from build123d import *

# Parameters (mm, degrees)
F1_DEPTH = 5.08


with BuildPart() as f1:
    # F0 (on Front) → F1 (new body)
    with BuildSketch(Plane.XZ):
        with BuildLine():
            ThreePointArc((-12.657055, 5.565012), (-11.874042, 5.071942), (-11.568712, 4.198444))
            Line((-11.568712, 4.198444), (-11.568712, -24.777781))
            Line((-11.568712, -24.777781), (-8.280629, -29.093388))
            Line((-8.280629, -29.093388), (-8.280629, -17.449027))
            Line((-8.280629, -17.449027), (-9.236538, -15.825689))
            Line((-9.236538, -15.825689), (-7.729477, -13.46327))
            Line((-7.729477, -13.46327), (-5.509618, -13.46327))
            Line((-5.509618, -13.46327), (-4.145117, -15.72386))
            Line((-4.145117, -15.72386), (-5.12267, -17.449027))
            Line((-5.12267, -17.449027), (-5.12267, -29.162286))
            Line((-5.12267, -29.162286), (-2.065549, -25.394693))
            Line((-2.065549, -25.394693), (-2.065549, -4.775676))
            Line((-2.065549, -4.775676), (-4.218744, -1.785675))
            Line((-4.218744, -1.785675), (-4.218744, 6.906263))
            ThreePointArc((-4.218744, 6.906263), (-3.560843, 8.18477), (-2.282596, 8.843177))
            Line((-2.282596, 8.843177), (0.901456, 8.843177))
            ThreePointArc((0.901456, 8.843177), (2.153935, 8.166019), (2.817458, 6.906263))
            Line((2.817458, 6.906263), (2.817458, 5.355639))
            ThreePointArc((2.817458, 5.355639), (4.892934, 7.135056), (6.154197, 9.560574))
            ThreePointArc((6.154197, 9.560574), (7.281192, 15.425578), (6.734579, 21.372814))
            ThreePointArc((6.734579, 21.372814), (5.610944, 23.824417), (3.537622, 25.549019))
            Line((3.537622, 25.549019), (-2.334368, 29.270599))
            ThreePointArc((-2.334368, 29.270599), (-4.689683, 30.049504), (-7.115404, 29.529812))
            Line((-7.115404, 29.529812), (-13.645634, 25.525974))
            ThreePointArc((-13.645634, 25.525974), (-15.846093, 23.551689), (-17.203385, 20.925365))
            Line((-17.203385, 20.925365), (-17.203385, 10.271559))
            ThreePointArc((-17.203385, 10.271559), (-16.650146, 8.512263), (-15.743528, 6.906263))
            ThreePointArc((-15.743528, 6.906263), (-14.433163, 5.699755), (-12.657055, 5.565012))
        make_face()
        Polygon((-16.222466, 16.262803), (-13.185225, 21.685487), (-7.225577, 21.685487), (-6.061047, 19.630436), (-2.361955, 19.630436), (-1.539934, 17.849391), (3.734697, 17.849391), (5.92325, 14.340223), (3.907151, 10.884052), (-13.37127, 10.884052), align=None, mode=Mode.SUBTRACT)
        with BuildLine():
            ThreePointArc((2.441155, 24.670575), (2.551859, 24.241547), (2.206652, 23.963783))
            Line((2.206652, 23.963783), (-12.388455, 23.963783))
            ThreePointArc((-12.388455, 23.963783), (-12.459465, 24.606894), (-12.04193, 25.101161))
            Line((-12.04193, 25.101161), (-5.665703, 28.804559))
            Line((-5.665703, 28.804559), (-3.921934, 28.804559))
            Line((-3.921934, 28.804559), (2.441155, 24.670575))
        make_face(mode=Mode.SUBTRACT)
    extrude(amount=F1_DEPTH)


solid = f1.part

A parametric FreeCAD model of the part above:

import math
import FreeCAD as App
import Part
import Sketcher
Q = App.Units.Quantity


def add_polygon(sketch, points):
    """Adds a closed chain of lines whose ends are joined by coincident constraints."""
    first, n = sketch.GeometryCount, len(points)
    for a, b in zip(points, points[1:] + points[:1]):
        sketch.addGeometry(Part.LineSegment(App.Vector(*a, 0), App.Vector(*b, 0)), False)
    for i in range(n):
        sketch.addConstraint(Sketcher.Constraint("Coincident", first + i, 2, first + (i + 1) % n, 1))

doc = App.newDocument("Part")
params = doc.addObject("Spreadsheet::Sheet", "Params")
for row, (alias, value) in enumerate([
    ("pad1_length", "0.2 in"),
], start=1):
    params.set(f"A{row}", alias)
    params.set(f"B{row}", "=" + value)
    params.setAlias(f"B{row}", alias)

body = doc.addObject("PartDesign::Body", "Body")

sketch1 = body.newObject("Sketcher::SketchObject", "Sketch")
sketch1.AttachmentSupport = (doc.getObject("XZ_Plane"), [""])
sketch1.MapMode = "FlatFace"
sketch1.addGeometry(Part.ArcOfCircle(Part.Circle(App.Vector(-12.970843, 4.198444, 0), App.Vector(0, 0, 1), 1.402131), math.radians(0.000002), math.radians(77.068053)), False)
sketch1.addGeometry(Part.LineSegment(App.Vector(-11.568712, 4.198444, 0), App.Vector(-11.568712, -24.777781, 0)), False)
sketch1.addGeometry(Part.LineSegment(App.Vector(-11.568712, -24.777781, 0), App.Vector(-8.280629, -29.093388, 0)), False)
sketch1.addGeometry(Part.LineSegment(App.Vector(-8.280629, -29.093388, 0), App.Vector(-8.280629, -17.449027, 0)), False)
sketch1.addGeometry(Part.LineSegment(App.Vector(-8.280629, -17.449027, 0), App.Vector(-9.236538, -15.825689, 0)), False)
sketch1.addGeometry(Part.LineSegment(App.Vector(-9.236538, -15.825689, 0), App.Vector(-7.729477, -13.46327, 0)), False)
sketch1.addGeometry(Part.LineSegment(App.Vector(-7.729477, -13.46327, 0), App.Vector(-5.509618, -13.46327, 0)), False)
sketch1.addGeometry(Part.LineSegment(App.Vector(-5.509618, -13.46327, 0), App.Vector(-4.145117, -15.72386, 0)), False)
sketch1.addGeometry(Part.LineSegment(App.Vector(-4.145117, -15.72386, 0), App.Vector(-5.12267, -17.449027, 0)), False)
sketch1.addGeometry(Part.LineSegment(App.Vector(-5.12267, -17.449027, 0), App.Vector(-5.12267, -29.162286, 0)), False)
sketch1.addGeometry(Part.LineSegment(App.Vector(-5.12267, -29.162286, 0), App.Vector(-2.065549, -25.394693, 0)), False)
sketch1.addGeometry(Part.LineSegment(App.Vector(-2.065549, -25.394693, 0), App.Vector(-2.065549, -4.775676, 0)), False)
sketch1.addGeometry(Part.LineSegment(App.Vector(-2.065549, -4.775676, 0), App.Vector(-4.218744, -1.785675, 0)), False)
sketch1.addGeometry(Part.LineSegment(App.Vector(-4.218744, -1.785675, 0), App.Vector(-4.218744, 6.906263, 0)), False)
sketch1.addGeometry(Part.ArcOfCircle(Part.Circle(App.Vector(-1.893843, 6.51843, 0), App.Vector(0, 0, 1), 2.357028), math.radians(99.493377), math.radians(170.529287)), False)
sketch1.addGeometry(Part.LineSegment(App.Vector(-2.282596, 8.843177, 0), App.Vector(0.901456, 8.843177, 0)), False)
sketch1.addGeometry(Part.ArcOfCircle(Part.Circle(App.Vector(0.414203, 6.44507, 0), App.Vector(0, 0, 1), 2.447107), math.radians(10.863199), math.radians(78.514853)), False)
sketch1.addGeometry(Part.LineSegment(App.Vector(2.817458, 6.906263, 0), App.Vector(2.817458, 5.355639, 0)), False)
sketch1.addGeometry(Part.ArcOfCircle(Part.Circle(App.Vector(-0.739631, 11.604661, 0), App.Vector(0, 0, 1), 7.190491), math.radians(-60.350458), math.radians(-16.5156)), False)
sketch1.addGeometry(Part.ArcOfCircle(Part.Circle(App.Vector(-13.979756, 16.470213, 0), App.Vector(0, 0, 1), 21.286596), math.radians(-18.94137), math.radians(13.315559)), False)
sketch1.addGeometry(Part.ArcOfCircle(Part.Circle(App.Vector(0.782353, 20.128048, 0), App.Vector(0, 0, 1), 6.08099), math.radians(11.81182), math.radians(63.057539)), False)
sketch1.addGeometry(Part.LineSegment(App.Vector(3.537622, 25.549019, 0), App.Vector(-2.334368, 29.270599, 0)), False)
sketch1.addGeometry(Part.ArcOfCircle(Part.Circle(App.Vector(-4.94587, 25.324278, 0), App.Vector(0, 0, 1), 4.732166), math.radians(56.505159), math.radians(117.288118)), False)
sketch1.addGeometry(Part.LineSegment(App.Vector(-7.115404, 29.529812, 0), App.Vector(-13.645634, 25.525974, 0)), False)
sketch1.addGeometry(Part.ArcOfCircle(Part.Circle(App.Vector(-9.359674, 18.5356, 0), App.Vector(0, 0, 1), 8.199682), math.radians(121.513427), math.radians(163.055451)), False)
sketch1.addGeometry(Part.LineSegment(App.Vector(-17.203385, 20.925365, 0), App.Vector(-17.203385, 10.271559, 0)), False)
sketch1.addGeometry(Part.ArcOfCircle(Part.Circle(App.Vector(-8.54972, 12.026208, 0), App.Vector(0, 0, 1), 8.829762), math.radians(-168.537892), math.radians(-144.559949)), False)
sketch1.addGeometry(Part.ArcOfCircle(Part.Circle(App.Vector(-13.351092, 8.189806, 0), App.Vector(0, 0, 1), 2.715001), math.radians(-151.786416), math.radians(-75.189051)), False)
add_polygon(sketch1, [(-13.37127, 10.884052), (-16.222466, 16.262803), (-13.185225, 21.685487), (-7.225577, 21.685487), (-6.061047, 19.630436), (-2.361955, 19.630436), (-1.539934, 17.849391), (3.734697, 17.849391), (5.92325, 14.340223), (3.907151, 10.884052)])
sketch1.addGeometry(Part.LineSegment(App.Vector(-3.921934, 28.804559, 0), App.Vector(2.441155, 24.670575, 0)), False)
sketch1.addGeometry(Part.ArcOfCircle(Part.Circle(App.Vector(2.163949, 24.37025, 0), App.Vector(0, 0, 1), 0.408704), math.radians(-84.002541), math.radians(47.292399)), False)
sketch1.addGeometry(Part.LineSegment(App.Vector(2.206652, 23.963783, 0), App.Vector(-12.388455, 23.963783, 0)), False)
sketch1.addGeometry(Part.ArcOfCircle(Part.Circle(App.Vector(-11.675348, 24.367998, 0), App.Vector(0, 0, 1), 0.819702), math.radians(116.56507), math.radians(209.546114)), False)
sketch1.addGeometry(Part.LineSegment(App.Vector(-12.04193, 25.101161, 0), App.Vector(-5.665703, 28.804559, 0)), False)
sketch1.addGeometry(Part.LineSegment(App.Vector(-5.665703, 28.804559, 0), App.Vector(-3.921934, 28.804559, 0)), False)
sketch1.addConstraint([
    Sketcher.Constraint("Coincident", 0, 1, 1, 1),
    Sketcher.Constraint("Coincident", 1, 2, 2, 1),
    Sketcher.Constraint("Coincident", 2, 2, 3, 1),
    Sketcher.Constraint("Coincident", 3, 2, 4, 1),
    Sketcher.Constraint("Coincident", 4, 2, 5, 1),
    Sketcher.Constraint("Coincident", 5, 2, 6, 1),
    Sketcher.Constraint("Coincident", 6, 2, 7, 1),
    Sketcher.Constraint("Coincident", 7, 2, 8, 1),
    Sketcher.Constraint("Coincident", 8, 2, 9, 1),
    Sketcher.Constraint("Coincident", 9, 2, 10, 1),
    Sketcher.Constraint("Coincident", 10, 2, 11, 1),
    Sketcher.Constraint("Coincident", 11, 2, 12, 1),
    Sketcher.Constraint("Coincident", 12, 2, 13, 1),
    Sketcher.Constraint("Coincident", 13, 2, 14, 2),
    Sketcher.Constraint("Coincident", 14, 1, 15, 1),
    Sketcher.Constraint("Coincident", 15, 2, 16, 2),
    Sketcher.Constraint("Coincident", 16, 1, 17, 1),
    Sketcher.Constraint("Coincident", 17, 2, 18, 1),
    Sketcher.Constraint("Coincident", 18, 2, 19, 1),
    Sketcher.Constraint("Coincident", 19, 2, 20, 1),
    Sketcher.Constraint("Coincident", 20, 2, 21, 1),
    Sketcher.Constraint("Coincident", 21, 2, 22, 1),
    Sketcher.Constraint("Coincident", 22, 2, 23, 1),
    Sketcher.Constraint("Coincident", 23, 2, 24, 1),
    Sketcher.Constraint("Coincident", 24, 2, 25, 1),
    Sketcher.Constraint("Coincident", 25, 2, 26, 1),
    Sketcher.Constraint("Coincident", 26, 2, 27, 1),
    Sketcher.Constraint("Coincident", 27, 2, 0, 2),
    Sketcher.Constraint("Coincident", 38, 2, 39, 2),
    Sketcher.Constraint("Coincident", 39, 1, 40, 1),
    Sketcher.Constraint("Coincident", 40, 2, 41, 2),
    Sketcher.Constraint("Coincident", 41, 1, 42, 1),
    Sketcher.Constraint("Coincident", 42, 2, 43, 1),
    Sketcher.Constraint("Coincident", 43, 2, 38, 1),
    Sketcher.Constraint("Vertical", 1),
    Sketcher.Constraint("Vertical", 3),
    Sketcher.Constraint("Horizontal", 6),
    Sketcher.Constraint("Vertical", 9),
    Sketcher.Constraint("Vertical", 11),
    Sketcher.Constraint("Vertical", 13),
    Sketcher.Constraint("Horizontal", 15),
    Sketcher.Constraint("Vertical", 17),
    Sketcher.Constraint("Vertical", 25),
    Sketcher.Constraint("Horizontal", 30),
    Sketcher.Constraint("Horizontal", 32),
    Sketcher.Constraint("Horizontal", 34),
    Sketcher.Constraint("Horizontal", 37),
    Sketcher.Constraint("Horizontal", 40),
    Sketcher.Constraint("Horizontal", 43),
    Sketcher.Constraint("Radius", 27, 2.715001),
    Sketcher.Constraint("Radius", 41, 0.819702),
    Sketcher.Constraint("Radius", 0, 1.402131),
    Sketcher.Constraint("Radius", 18, 7.190491),
    Sketcher.Constraint("Radius", 20, 6.08099),
    Sketcher.Constraint("Radius", 24, 8.199682),
    Sketcher.Constraint("DistanceY", -1, 1, 13, 2, Q("0.2719001 in")),
    Sketcher.Constraint("DistanceY", -1, 1, 16, 1, Q("0.2719001 in")),
    Sketcher.Constraint("DistanceY", -1, 1, 26, 2, Q("0.2719001 in")),
    Sketcher.Constraint("Radius", 14, 2.357028),
    Sketcher.Constraint("Radius", 16, 2.447107),
    Sketcher.Constraint("Radius", 19, 21.286596),
    Sketcher.Constraint("Radius", 22, 4.732166),
    Sketcher.Constraint("Radius", 26, 8.829762),
    Sketcher.Constraint("Radius", 39, 0.408704),
    Sketcher.Constraint("DistanceY", 16, 3, 20, 3, Q("0.5386999 in")),
    Sketcher.Constraint("DistanceX", 22, 3, 18, 3, Q("0.1656 in")),
    Sketcher.Constraint("Distance", 35, 4.135701),
    Sketcher.Constraint("Distance", 42, 7.373698),
    Sketcher.Constraint("DistanceX", 6, 1, 6, 2, 2.219859),
    Sketcher.Constraint("DistanceX", 15, 1, 15, 2, 3.184052),
    Sketcher.Constraint("DistanceX", 30, 1, 30, 2, 5.959648),
    Sketcher.Constraint("DistanceX", 34, 1, 34, 2, 5.274631),
    Sketcher.Constraint("DistanceX", 37, 2, 37, 1, 17.278421),
    Sketcher.Constraint("DistanceX", 43, 1, 43, 2, 1.743769),
    Sketcher.Constraint("DistanceY", 3, 1, 3, 2, 11.644361),
    Sketcher.Constraint("DistanceY", 9, 2, 9, 1, 11.713259),
    Sketcher.Constraint("DistanceY", -1, 1, 24, 3, 18.5356),
    Sketcher.Constraint("DistanceY", -1, 1, 21, 2, 29.270599),
    Sketcher.Constraint("DistanceX", 0, 3, 14, 3, 11.077),
    Sketcher.Constraint("DistanceY", 27, 3, 26, 3, 3.836402),
    Sketcher.Constraint("DistanceX", 41, 3, 20, 3, 12.457701),
    Sketcher.Constraint("DistanceY", 2, 2, 4, 2, 13.267699),
    Sketcher.Constraint("DistanceX", 6, 2, 7, 2, 1.364501),
    Sketcher.Constraint("DistanceY", 9, 2, 2, 2, 0.068898),
    Sketcher.Constraint("DistanceY", 11, 2, 12, 2, 2.990001),
    Sketcher.Constraint("DistanceX", 12, 2, 14, 3, 2.324901),
    Sketcher.Constraint("DistanceX", 14, 1, 16, 3, 2.696799),
    Sketcher.Constraint("DistanceX", 14, 3, 15, 2, 2.795299),
    Sketcher.Constraint("DistanceY", 41, 3, 21, 2, 4.902601),
    Sketcher.Constraint("DistanceX", 31, 2, 20, 3, 6.8434),
    Sketcher.Constraint("DistanceX", 36, 2, 35, 2, 2.016099),
    Sketcher.Constraint("DistanceX", 20, 3, 39, 1, 1.424299),
    Sketcher.Constraint("DistanceX", 22, 2, 42, 2, 1.449701),
    Sketcher.Constraint("DistanceY", 41, 1, 42, 2, 3.703398),
    Sketcher.Constraint("Distance", 2, 5.425491),
    Sketcher.Constraint("Distance", 7, 2.640479),
    Sketcher.Constraint("Distance", 8, 1.982879),
    Sketcher.Constraint("Distance", 10, 4.851881),
    Sketcher.Constraint("Distance", 12, 3.684611),
    Sketcher.Constraint("Distance", 21, 6.952009),
    Sketcher.Constraint("Distance", 29, 6.215331),
    Sketcher.Constraint("Distance", 33, 1.961591),
    Sketcher.Constraint("Distance", 36, 4.001221),
    Sketcher.Constraint("DistanceX", 32, 1, 32, 2, 3.699092),
    Sketcher.Constraint("DistanceX", 40, 2, 40, 1, 14.595107),
    Sketcher.Constraint("DistanceY", 1, 2, 1, 1, 28.976225),
    Sketcher.Constraint("DistanceY", 11, 1, 11, 2, 20.619017),
    Sketcher.Constraint("DistanceY", 13, 1, 13, 2, 8.691938),
    Sketcher.Constraint("DistanceY", 17, 2, 17, 1, 1.550624),
    Sketcher.Constraint("DistanceY", 25, 2, 25, 1, 10.653806),
    Sketcher.Constraint("DistanceX", 18, 3, -1, 1, 0.739631),
    Sketcher.Constraint("DistanceY", -1, 1, 18, 3, 11.604661),
    Sketcher.Constraint("DistanceX", 26, 3, -1, 1, 8.54972),
    Sketcher.Constraint("DistanceX", -1, 1, 39, 3, 2.163949),
    Sketcher.Constraint("DistanceY", -1, 1, 39, 3, 24.37025),
    Sketcher.Constraint("DistanceY", 1, 2, -1, 1, 24.777781),
    Sketcher.Constraint("DistanceX", 2, 2, -1, 1, 8.280629),
    Sketcher.Constraint("DistanceY", 5, 2, -1, 1, 13.46327),
    Sketcher.Constraint("DistanceX", -1, 1, 19, 2, 6.734579),
    Sketcher.Constraint("DistanceX", -1, 1, 20, 2, 3.537622),
    Sketcher.Constraint("DistanceY", -1, 1, 22, 2, 29.529812),
    Sketcher.Constraint("DistanceY", -1, 1, 25, 2, 10.271559),
    Sketcher.Constraint("DistanceY", -1, 1, 27, 2, 5.565012),
    Sketcher.Constraint("DistanceY", -1, 1, 33, 2, 17.849391),
    Sketcher.Constraint("DistanceX", -1, 1, 35, 2, 5.92325),
    Sketcher.Constraint("DistanceY", 0, 3, 19, 3, 12.271769),
    Sketcher.Constraint("DistanceX", 19, 3, 16, 3, 14.393959),
    Sketcher.Constraint("DistanceX", 4, 2, 3, 2, 0.955909),
    Sketcher.Constraint("DistanceX", 23, 2, 22, 2, 6.53023),
    Sketcher.Constraint("DistanceX", 28, 2, 19, 3, 2.24271),
    Sketcher.Constraint("DistanceY", 28, 2, 19, 3, 0.20741),
    Sketcher.Constraint("DistanceY", 29, 2, 41, 3, 2.682511),
    Sketcher.Constraint("DistanceY", 31, 2, 30, 2, 2.055051),
    Sketcher.Constraint("DistanceY", 19, 2, 38, 2, 3.297761),
])
pad1 = body.newObject("PartDesign::Pad", "Pad")
pad1.Profile = sketch1
pad1.setExpression("Length", "Params.pad1_length")

doc.recompute()
